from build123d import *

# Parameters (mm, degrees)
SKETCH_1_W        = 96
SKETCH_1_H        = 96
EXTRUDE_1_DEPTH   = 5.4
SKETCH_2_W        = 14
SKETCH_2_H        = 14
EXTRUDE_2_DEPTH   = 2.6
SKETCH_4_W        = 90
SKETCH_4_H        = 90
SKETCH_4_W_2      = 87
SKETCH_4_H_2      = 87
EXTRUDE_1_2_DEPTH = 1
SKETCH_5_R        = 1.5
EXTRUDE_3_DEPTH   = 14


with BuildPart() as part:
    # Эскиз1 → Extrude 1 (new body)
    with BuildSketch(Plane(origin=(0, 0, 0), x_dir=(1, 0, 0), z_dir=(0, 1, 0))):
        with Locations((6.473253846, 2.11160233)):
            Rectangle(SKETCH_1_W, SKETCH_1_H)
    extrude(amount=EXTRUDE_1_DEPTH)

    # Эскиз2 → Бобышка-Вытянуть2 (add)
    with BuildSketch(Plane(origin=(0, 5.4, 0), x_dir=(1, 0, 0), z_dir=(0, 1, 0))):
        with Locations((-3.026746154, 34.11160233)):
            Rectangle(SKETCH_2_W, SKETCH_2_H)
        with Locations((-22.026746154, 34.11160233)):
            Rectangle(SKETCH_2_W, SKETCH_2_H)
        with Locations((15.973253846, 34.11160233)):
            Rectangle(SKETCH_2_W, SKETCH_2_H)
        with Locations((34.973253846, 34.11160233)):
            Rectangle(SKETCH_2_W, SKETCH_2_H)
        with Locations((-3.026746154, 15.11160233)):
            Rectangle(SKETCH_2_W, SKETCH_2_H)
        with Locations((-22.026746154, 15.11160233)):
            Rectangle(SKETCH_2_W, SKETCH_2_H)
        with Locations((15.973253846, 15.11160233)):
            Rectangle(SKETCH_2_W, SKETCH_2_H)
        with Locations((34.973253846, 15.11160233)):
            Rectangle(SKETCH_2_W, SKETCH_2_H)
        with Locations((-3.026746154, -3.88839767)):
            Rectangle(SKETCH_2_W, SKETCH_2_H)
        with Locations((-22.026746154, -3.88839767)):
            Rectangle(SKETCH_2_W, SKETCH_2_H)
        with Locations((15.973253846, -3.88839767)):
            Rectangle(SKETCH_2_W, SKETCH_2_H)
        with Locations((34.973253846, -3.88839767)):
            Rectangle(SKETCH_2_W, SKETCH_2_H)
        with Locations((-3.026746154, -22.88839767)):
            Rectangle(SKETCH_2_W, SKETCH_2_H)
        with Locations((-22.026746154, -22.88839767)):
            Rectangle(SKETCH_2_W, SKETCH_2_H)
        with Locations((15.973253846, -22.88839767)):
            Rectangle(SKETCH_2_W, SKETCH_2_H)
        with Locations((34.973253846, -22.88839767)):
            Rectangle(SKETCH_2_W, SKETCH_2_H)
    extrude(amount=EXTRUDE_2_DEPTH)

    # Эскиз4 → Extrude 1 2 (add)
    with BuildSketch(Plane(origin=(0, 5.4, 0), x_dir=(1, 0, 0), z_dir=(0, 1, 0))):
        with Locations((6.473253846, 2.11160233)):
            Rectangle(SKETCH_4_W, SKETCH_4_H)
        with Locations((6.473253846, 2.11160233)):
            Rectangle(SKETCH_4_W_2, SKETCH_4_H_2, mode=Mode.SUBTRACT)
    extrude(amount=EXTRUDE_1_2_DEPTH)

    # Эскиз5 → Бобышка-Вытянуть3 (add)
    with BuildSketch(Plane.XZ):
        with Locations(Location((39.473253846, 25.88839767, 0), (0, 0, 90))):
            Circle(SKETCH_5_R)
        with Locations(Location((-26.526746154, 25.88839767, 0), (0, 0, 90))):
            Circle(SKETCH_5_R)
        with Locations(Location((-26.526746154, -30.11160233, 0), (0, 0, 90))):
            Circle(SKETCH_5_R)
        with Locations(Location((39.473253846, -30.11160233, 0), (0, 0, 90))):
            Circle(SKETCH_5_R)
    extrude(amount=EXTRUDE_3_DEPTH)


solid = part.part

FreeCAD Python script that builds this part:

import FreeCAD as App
import Part
import Sketcher

V = App.Vector


def add_polygon(sketch, points):
    """Adds a closed chain of lines whose ends are joined by coincident constraints."""
    first, n = sketch.GeometryCount, len(points)
    for a, b in zip(points, points[1:] + points[:1]):
        sketch.addGeometry(Part.LineSegment(App.Vector(*a, 0), App.Vector(*b, 0)), False)
    for i in range(n):
        sketch.addConstraint(Sketcher.Constraint("Coincident", first + i, 2, first + (i + 1) % n, 1))

doc = App.newDocument("Part")
body = doc.addObject("PartDesign::Body", "Body")

sketch1 = body.newObject("Sketcher::SketchObject", "Sketch")
sketch1.AttachmentSupport = (doc.getObject("XZ_Plane"), [""])
sketch1.MapMode = "FlatFace"
add_polygon(sketch1, [(-42, -50), (-42, 46), (54, 46), (54, -50)])
sketch1.addConstraint([
    Sketcher.Constraint("Vertical", 0),
    Sketcher.Constraint("Horizontal", 1),
    Sketcher.Constraint("Vertical", 2),
    Sketcher.Constraint("Horizontal", 3),
    Sketcher.Constraint("Equal", 3, 0),
    Sketcher.Constraint("DistanceX", 1, 1, 1, 2, 96.0),
    Sketcher.Constraint("DistanceX", 0, 2, -1, 1, 41.526746),
    Sketcher.Constraint("DistanceY", -1, 1, 0, 2, 45.888398),
])
pad1 = body.newObject("PartDesign::Pad", "Pad")
pad1.Profile = sketch1
pad1.Length = 5.4
pad1.Reversed = True

sketch2 = body.newObject("Sketcher::SketchObject", "Sketch001")
sketch2.AttachmentSupport = (doc.getObject("XZ_Plane"), [""])
sketch2.MapMode = "FlatFace"
sketch2.AttachmentOffset = App.Placement(V(0, 0, -5.4), App.Rotation())
add_polygon(sketch2, [(-10, -41), (-10, -27), (4, -27), (4, -41)])
add_polygon(sketch2, [(-29, -41), (-29, -27), (-15, -27), (-15, -41)])
add_polygon(sketch2, [(9, -41), (9, -27), (23, -27), (23, -41)])
add_polygon(sketch2, [(28, -41), (28, -27), (42, -27), (42, -41)])
add_polygon(sketch2, [(-10, -22), (-10, -8), (4, -8), (4, -22)])
add_polygon(sketch2, [(-29, -22), (-29, -8), (-15, -8), (-15, -22)])
add_polygon(sketch2, [(9, -22), (9, -8), (23, -8), (23, -22)])
add_polygon(sketch2, [(28, -22), (28, -8), (42, -8), (42, -22)])
add_polygon(sketch2, [(-10, -3), (-10, 11), (4, 11), (4, -3)])
add_polygon(sketch2, [(-29, -3), (-29, 11), (-15, 11), (-15, -3)])
add_polygon(sketch2, [(9, -3), (9, 11), (23, 11), (23, -3)])
add_polygon(sketch2, [(28, -3), (28, 11), (42, 11), (42, -3)])
add_polygon(sketch2, [(-10, 16), (-10, 30), (4, 30), (4, 16)])
add_polygon(sketch2, [(-29, 16), (-29, 30), (-15, 30), (-15, 16)])
add_polygon(sketch2, [(9, 16), (9, 30), (23, 30), (23, 16)])
add_polygon(sketch2, [(28, 16), (28, 30), (42, 30), (42, 16)])
sketch2.addConstraint([
    Sketcher.Constraint("Vertical", 0),
    Sketcher.Constraint("Horizontal", 1),
    Sketcher.Constraint("Vertical", 2),
    Sketcher.Constraint("Horizontal", 3),
    Sketcher.Constraint("Vertical", 4),
    Sketcher.Constraint("Horizontal", 5),
    Sketcher.Constraint("Vertical", 6),
    Sketcher.Constraint("Horizontal", 7),
    Sketcher.Constraint("Vertical", 8),
    Sketcher.Constraint("Horizontal", 9),
    Sketcher.Constraint("Vertical", 10),
    Sketcher.Constraint("Horizontal", 11),
    Sketcher.Constraint("Vertical", 12),
    Sketcher.Constraint("Horizontal", 13),
    Sketcher.Constraint("Vertical", 14),
    Sketcher.Constraint("Horizontal", 15),
    Sketcher.Constraint("Vertical", 16),
    Sketcher.Constraint("Horizontal", 17),
    Sketcher.Constraint("Vertical", 18),
    Sketcher.Constraint("Horizontal", 19),
    Sketcher.Constraint("Vertical", 20),
    Sketcher.Constraint("Horizontal", 21),
    Sketcher.Constraint("Vertical", 22),
    Sketcher.Constraint("Horizontal", 23),
    Sketcher.Constraint("Vertical", 24),
    Sketcher.Constraint("Horizontal", 25),
    Sketcher.Constraint("Vertical", 26),
    Sketcher.Constraint("Horizontal", 27),
    Sketcher.Constraint("Vertical", 28),
    Sketcher.Constraint("Horizontal", 29),
    Sketcher.Constraint("Vertical", 30),
    Sketcher.Constraint("Horizontal", 31),
    Sketcher.Constraint("Vertical", 32),
    Sketcher.Constraint("Horizontal", 33),
    Sketcher.Constraint("Vertical", 34),
    Sketcher.Constraint("Horizontal", 35),
    Sketcher.Constraint("Vertical", 36),
    Sketcher.Constraint("Horizontal", 37),
    Sketcher.Constraint("Vertical", 38),
    Sketcher.Constraint("Horizontal", 39),
    Sketcher.Constraint("Vertical", 40),
    Sketcher.Constraint("Horizontal", 41),
    Sketcher.Constraint("Vertical", 42),
    Sketcher.Constraint("Horizontal", 43),
    Sketcher.Constraint("Vertical", 44),
    Sketcher.Constraint("Horizontal", 45),
    Sketcher.Constraint("Vertical", 46),
    Sketcher.Constraint("Horizontal", 47),
    Sketcher.Constraint("Vertical", 48),
    Sketcher.Constraint("Horizontal", 49),
    Sketcher.Constraint("Vertical", 50),
    Sketcher.Constraint("Horizontal", 51),
    Sketcher.Constraint("Vertical", 52),
    Sketcher.Constraint("Horizontal", 53),
    Sketcher.Constraint("Vertical", 54),
    Sketcher.Constraint("Horizontal", 55),
    Sketcher.Constraint("Vertical", 56),
    Sketcher.Constraint("Horizontal", 57),
    Sketcher.Constraint("Vertical", 58),
    Sketcher.Constraint("Horizontal", 59),
    Sketcher.Constraint("Vertical", 60),
    Sketcher.Constraint("Horizontal", 61),
    Sketcher.Constraint("Vertical", 62),
    Sketcher.Constraint("Horizontal", 63),
    Sketcher.Constraint("Horizontal", 1, 2, 4, 2),
    Sketcher.Constraint("Horizontal", 3, 2, 6, 2),
    Sketcher.Constraint("Horizontal", 5, 2, 8, 2),
    Sketcher.Constraint("Horizontal", 7, 2, 10, 2),
    Sketcher.Constraint("Horizontal", 9, 2, 12, 2),
    Sketcher.Constraint("Horizontal", 11, 2, 14, 2),
    Sketcher.Constraint("Horizontal", 17, 2, 20, 2),
    Sketcher.Constraint("Horizontal", 19, 2, 22, 2),
    Sketcher.Constraint("Horizontal", 21, 2, 24, 2),
    Sketcher.Constraint("Horizontal", 23, 2, 26, 2),
    Sketcher.Constraint("Horizontal", 25, 2, 28, 2),
    Sketcher.Constraint("Horizontal", 27, 2, 30, 2),
    Sketcher.Constraint("Horizontal", 33, 2, 36, 2),
    Sketcher.Constraint("Horizontal", 35, 2, 38, 2),
    Sketcher.Constraint("Horizontal", 37, 2, 40, 2),
    Sketcher.Constraint("Horizontal", 39, 2, 42, 2),
    Sketcher.Constraint("Horizontal", 41, 2, 44, 2),
    Sketcher.Constraint("Horizontal", 43, 2, 46, 2),
    Sketcher.Constraint("Horizontal", 49, 2, 52, 2),
    Sketcher.Constraint("Horizontal", 51, 2, 54, 2),
    Sketcher.Constraint("Horizontal", 53, 2, 56, 2),
    Sketcher.Constraint("Horizontal", 55, 2, 58, 2),
    Sketcher.Constraint("Horizontal", 57, 2, 60, 2),
    Sketcher.Constraint("Horizontal", 59, 2, 62, 2),
    Sketcher.Constraint("Vertical", 3, 2, 16, 2),
    Sketcher.Constraint("Vertical", 2, 2, 17, 2),
    Sketcher.Constraint("Vertical", 7, 2, 20, 2),
    Sketcher.Constraint("Vertical", 6, 2, 21, 2),
    Sketcher.Constraint("Vertical", 11, 2, 24, 2),
    Sketcher.Constraint("Vertical", 10, 2, 25, 2),
    Sketcher.Constraint("Vertical", 15, 2, 28, 2),
    Sketcher.Constraint("Vertical", 14, 2, 29, 2),
    Sketcher.Constraint("Vertical", 19, 2, 32, 2),
    Sketcher.Constraint("Vertical", 18, 2, 33, 2),
    Sketcher.Constraint("Vertical", 23, 2, 36, 2),
    Sketcher.Constraint("Vertical", 22, 2, 37, 2),
    Sketcher.Constraint("Vertical", 27, 2, 40, 2),
    Sketcher.Constraint("Vertical", 26, 2, 41, 2),
    Sketcher.Constraint("Vertical", 31, 2, 44, 2),
    Sketcher.Constraint("Vertical", 30, 2, 45, 2),
    Sketcher.Constraint("Vertical", 35, 2, 48, 2),
    Sketcher.Constraint("Vertical", 34, 2, 49, 2),
    Sketcher.Constraint("Vertical", 39, 2, 52, 2),
    Sketcher.Constraint("Vertical", 38, 2, 53, 2),
    Sketcher.Constraint("Vertical", 43, 2, 56, 2),
    Sketcher.Constraint("Vertical", 42, 2, 57, 2),
    Sketcher.Constraint("Vertical", 47, 2, 60, 2),
    Sketcher.Constraint("Vertical", 46, 2, 61, 2),
    Sketcher.Constraint("Equal", 3, 5),
    Sketcher.Constraint("Equal", 7, 9),
    Sketcher.Constraint("Equal", 11, 13),
    Sketcher.Constraint("Equal", 63, 0),
    Sketcher.Constraint("Equal", 14, 16),
    Sketcher.Constraint("Equal", 30, 32),
    Sketcher.Constraint("Equal", 46, 48),
    Sketcher.Constraint("DistanceX", 1, 1, 1, 2, 14.0),
    Sketcher.Constraint("DistanceX", 0, 2, -1, 1, 10.026746),
    Sketcher.Constraint("DistanceY", 0, 2, -1, 1, 27.111602),
    Sketcher.Constraint("DistanceX", 4, 2, -1, 1, 29.026746),
    Sketcher.Constraint("DistanceX", -1, 1, 8, 2, 8.973254),
    Sketcher.Constraint("DistanceX", -1, 1, 12, 2, 27.973254),
    Sketcher.Constraint("DistanceY", 16, 2, -1, 1, 8.111602),
    Sketcher.Constraint("DistanceY", -1, 1, 32, 2, 10.888398),
    Sketcher.Constraint("DistanceY", -1, 1, 48, 2, 29.888398),
])
pad2 = body.newObject("PartDesign::Pad", "Pad001")
pad2.Profile = sketch2
pad2.Length = 2.6
pad2.Reversed = True

sketch3 = body.newObject("Sketcher::SketchObject", "Sketch002")
sketch3.AttachmentSupport = (doc.getObject("XZ_Plane"), [""])
sketch3.MapMode = "FlatFace"
sketch3.AttachmentOffset = App.Placement(V(0, 0, -5.4), App.Rotation())
add_polygon(sketch3, [(-39, -47), (-39, 43), (51, 43), (51, -47)])
add_polygon(sketch3, [(50, 41), (-37, 41), (-37, -46), (50, -46)])
sketch3.addConstraint([
    Sketcher.Constraint("Vertical", 0),
    Sketcher.Constraint("Horizontal", 1),
    Sketcher.Constraint("Vertical", 2),
    Sketcher.Constraint("Horizontal", 3),
    Sketcher.Constraint("Horizontal", 4),
    Sketcher.Constraint("Vertical", 5),
    Sketcher.Constraint("Horizontal", 6),
    Sketcher.Constraint("Vertical", 7),
    Sketcher.Constraint("Equal", 3, 0),
    Sketcher.Constraint("Equal", 6, 5),
    Sketcher.Constraint("DistanceX", 1, 1, 1, 2, 90.0),
    Sketcher.Constraint("DistanceX", 4, 2, 4, 1, 87.0),
    Sketcher.Constraint("DistanceX", 0, 2, 4, 2, 1.5),
    Sketcher.Constraint("DistanceY", 4, 2, 0, 2, 1.5),
    Sketcher.Constraint("DistanceX", 0, 2, -1, 1, 38.526746),
    Sketcher.Constraint("DistanceY", -1, 1, 0, 2, 42.888398),
])
pad3 = body.newObject("PartDesign::Pad", "Pad002")
pad3.Profile = sketch3
pad3.Length = 1
pad3.Reversed = True

sketch4 = body.newObject("Sketcher::SketchObject", "Sketch003")
sketch4.AttachmentSupport = (doc.getObject("XZ_Plane"), [""])
sketch4.MapMode = "FlatFace"
sketch4.addGeometry([
    Part.Circle(V(39.5, 25.9, 0), V(0, 0, 1), 1.5),
    Part.Circle(V(-26.5, 25.9, 0), V(0, 0, 1), 1.5),
    Part.Circle(V(-26.5, -30.1, 0), V(0, 0, 1), 1.5),
    Part.Circle(V(39.5, -30.1, 0), V(0, 0, 1), 1.5),
], False)
sketch4.addConstraint([
    Sketcher.Constraint("Equal", 0, 1),
    Sketcher.Constraint("Equal", 1, 2),
    Sketcher.Constraint("Equal", 2, 3),
    Sketcher.Constraint("Horizontal", 0, 3, 1, 3),
    Sketcher.Constraint("Horizontal", 2, 3, 3, 3),
    Sketcher.Constraint("Vertical", 1, 3, 2, 3),
    Sketcher.Constraint("Vertical", 0, 3, 3, 3),
    Sketcher.Constraint("Diameter", 0, 3.0),
    Sketcher.Constraint("DistanceX", 1, 3, 0, 3, 66.0),
    Sketcher.Constraint("DistanceY", 2, 3, 1, 3, 56.0),
    Sketcher.Constraint("DistanceX", -1, 1, 0, 3, 39.473254),
    Sketcher.Constraint("DistanceY", -1, 1, 0, 3, 25.888398),
])
pad4 = body.newObject("PartDesign::Pad", "Pad003")
pad4.Profile = sketch4
pad4.Length = 14

doc.recompute()
